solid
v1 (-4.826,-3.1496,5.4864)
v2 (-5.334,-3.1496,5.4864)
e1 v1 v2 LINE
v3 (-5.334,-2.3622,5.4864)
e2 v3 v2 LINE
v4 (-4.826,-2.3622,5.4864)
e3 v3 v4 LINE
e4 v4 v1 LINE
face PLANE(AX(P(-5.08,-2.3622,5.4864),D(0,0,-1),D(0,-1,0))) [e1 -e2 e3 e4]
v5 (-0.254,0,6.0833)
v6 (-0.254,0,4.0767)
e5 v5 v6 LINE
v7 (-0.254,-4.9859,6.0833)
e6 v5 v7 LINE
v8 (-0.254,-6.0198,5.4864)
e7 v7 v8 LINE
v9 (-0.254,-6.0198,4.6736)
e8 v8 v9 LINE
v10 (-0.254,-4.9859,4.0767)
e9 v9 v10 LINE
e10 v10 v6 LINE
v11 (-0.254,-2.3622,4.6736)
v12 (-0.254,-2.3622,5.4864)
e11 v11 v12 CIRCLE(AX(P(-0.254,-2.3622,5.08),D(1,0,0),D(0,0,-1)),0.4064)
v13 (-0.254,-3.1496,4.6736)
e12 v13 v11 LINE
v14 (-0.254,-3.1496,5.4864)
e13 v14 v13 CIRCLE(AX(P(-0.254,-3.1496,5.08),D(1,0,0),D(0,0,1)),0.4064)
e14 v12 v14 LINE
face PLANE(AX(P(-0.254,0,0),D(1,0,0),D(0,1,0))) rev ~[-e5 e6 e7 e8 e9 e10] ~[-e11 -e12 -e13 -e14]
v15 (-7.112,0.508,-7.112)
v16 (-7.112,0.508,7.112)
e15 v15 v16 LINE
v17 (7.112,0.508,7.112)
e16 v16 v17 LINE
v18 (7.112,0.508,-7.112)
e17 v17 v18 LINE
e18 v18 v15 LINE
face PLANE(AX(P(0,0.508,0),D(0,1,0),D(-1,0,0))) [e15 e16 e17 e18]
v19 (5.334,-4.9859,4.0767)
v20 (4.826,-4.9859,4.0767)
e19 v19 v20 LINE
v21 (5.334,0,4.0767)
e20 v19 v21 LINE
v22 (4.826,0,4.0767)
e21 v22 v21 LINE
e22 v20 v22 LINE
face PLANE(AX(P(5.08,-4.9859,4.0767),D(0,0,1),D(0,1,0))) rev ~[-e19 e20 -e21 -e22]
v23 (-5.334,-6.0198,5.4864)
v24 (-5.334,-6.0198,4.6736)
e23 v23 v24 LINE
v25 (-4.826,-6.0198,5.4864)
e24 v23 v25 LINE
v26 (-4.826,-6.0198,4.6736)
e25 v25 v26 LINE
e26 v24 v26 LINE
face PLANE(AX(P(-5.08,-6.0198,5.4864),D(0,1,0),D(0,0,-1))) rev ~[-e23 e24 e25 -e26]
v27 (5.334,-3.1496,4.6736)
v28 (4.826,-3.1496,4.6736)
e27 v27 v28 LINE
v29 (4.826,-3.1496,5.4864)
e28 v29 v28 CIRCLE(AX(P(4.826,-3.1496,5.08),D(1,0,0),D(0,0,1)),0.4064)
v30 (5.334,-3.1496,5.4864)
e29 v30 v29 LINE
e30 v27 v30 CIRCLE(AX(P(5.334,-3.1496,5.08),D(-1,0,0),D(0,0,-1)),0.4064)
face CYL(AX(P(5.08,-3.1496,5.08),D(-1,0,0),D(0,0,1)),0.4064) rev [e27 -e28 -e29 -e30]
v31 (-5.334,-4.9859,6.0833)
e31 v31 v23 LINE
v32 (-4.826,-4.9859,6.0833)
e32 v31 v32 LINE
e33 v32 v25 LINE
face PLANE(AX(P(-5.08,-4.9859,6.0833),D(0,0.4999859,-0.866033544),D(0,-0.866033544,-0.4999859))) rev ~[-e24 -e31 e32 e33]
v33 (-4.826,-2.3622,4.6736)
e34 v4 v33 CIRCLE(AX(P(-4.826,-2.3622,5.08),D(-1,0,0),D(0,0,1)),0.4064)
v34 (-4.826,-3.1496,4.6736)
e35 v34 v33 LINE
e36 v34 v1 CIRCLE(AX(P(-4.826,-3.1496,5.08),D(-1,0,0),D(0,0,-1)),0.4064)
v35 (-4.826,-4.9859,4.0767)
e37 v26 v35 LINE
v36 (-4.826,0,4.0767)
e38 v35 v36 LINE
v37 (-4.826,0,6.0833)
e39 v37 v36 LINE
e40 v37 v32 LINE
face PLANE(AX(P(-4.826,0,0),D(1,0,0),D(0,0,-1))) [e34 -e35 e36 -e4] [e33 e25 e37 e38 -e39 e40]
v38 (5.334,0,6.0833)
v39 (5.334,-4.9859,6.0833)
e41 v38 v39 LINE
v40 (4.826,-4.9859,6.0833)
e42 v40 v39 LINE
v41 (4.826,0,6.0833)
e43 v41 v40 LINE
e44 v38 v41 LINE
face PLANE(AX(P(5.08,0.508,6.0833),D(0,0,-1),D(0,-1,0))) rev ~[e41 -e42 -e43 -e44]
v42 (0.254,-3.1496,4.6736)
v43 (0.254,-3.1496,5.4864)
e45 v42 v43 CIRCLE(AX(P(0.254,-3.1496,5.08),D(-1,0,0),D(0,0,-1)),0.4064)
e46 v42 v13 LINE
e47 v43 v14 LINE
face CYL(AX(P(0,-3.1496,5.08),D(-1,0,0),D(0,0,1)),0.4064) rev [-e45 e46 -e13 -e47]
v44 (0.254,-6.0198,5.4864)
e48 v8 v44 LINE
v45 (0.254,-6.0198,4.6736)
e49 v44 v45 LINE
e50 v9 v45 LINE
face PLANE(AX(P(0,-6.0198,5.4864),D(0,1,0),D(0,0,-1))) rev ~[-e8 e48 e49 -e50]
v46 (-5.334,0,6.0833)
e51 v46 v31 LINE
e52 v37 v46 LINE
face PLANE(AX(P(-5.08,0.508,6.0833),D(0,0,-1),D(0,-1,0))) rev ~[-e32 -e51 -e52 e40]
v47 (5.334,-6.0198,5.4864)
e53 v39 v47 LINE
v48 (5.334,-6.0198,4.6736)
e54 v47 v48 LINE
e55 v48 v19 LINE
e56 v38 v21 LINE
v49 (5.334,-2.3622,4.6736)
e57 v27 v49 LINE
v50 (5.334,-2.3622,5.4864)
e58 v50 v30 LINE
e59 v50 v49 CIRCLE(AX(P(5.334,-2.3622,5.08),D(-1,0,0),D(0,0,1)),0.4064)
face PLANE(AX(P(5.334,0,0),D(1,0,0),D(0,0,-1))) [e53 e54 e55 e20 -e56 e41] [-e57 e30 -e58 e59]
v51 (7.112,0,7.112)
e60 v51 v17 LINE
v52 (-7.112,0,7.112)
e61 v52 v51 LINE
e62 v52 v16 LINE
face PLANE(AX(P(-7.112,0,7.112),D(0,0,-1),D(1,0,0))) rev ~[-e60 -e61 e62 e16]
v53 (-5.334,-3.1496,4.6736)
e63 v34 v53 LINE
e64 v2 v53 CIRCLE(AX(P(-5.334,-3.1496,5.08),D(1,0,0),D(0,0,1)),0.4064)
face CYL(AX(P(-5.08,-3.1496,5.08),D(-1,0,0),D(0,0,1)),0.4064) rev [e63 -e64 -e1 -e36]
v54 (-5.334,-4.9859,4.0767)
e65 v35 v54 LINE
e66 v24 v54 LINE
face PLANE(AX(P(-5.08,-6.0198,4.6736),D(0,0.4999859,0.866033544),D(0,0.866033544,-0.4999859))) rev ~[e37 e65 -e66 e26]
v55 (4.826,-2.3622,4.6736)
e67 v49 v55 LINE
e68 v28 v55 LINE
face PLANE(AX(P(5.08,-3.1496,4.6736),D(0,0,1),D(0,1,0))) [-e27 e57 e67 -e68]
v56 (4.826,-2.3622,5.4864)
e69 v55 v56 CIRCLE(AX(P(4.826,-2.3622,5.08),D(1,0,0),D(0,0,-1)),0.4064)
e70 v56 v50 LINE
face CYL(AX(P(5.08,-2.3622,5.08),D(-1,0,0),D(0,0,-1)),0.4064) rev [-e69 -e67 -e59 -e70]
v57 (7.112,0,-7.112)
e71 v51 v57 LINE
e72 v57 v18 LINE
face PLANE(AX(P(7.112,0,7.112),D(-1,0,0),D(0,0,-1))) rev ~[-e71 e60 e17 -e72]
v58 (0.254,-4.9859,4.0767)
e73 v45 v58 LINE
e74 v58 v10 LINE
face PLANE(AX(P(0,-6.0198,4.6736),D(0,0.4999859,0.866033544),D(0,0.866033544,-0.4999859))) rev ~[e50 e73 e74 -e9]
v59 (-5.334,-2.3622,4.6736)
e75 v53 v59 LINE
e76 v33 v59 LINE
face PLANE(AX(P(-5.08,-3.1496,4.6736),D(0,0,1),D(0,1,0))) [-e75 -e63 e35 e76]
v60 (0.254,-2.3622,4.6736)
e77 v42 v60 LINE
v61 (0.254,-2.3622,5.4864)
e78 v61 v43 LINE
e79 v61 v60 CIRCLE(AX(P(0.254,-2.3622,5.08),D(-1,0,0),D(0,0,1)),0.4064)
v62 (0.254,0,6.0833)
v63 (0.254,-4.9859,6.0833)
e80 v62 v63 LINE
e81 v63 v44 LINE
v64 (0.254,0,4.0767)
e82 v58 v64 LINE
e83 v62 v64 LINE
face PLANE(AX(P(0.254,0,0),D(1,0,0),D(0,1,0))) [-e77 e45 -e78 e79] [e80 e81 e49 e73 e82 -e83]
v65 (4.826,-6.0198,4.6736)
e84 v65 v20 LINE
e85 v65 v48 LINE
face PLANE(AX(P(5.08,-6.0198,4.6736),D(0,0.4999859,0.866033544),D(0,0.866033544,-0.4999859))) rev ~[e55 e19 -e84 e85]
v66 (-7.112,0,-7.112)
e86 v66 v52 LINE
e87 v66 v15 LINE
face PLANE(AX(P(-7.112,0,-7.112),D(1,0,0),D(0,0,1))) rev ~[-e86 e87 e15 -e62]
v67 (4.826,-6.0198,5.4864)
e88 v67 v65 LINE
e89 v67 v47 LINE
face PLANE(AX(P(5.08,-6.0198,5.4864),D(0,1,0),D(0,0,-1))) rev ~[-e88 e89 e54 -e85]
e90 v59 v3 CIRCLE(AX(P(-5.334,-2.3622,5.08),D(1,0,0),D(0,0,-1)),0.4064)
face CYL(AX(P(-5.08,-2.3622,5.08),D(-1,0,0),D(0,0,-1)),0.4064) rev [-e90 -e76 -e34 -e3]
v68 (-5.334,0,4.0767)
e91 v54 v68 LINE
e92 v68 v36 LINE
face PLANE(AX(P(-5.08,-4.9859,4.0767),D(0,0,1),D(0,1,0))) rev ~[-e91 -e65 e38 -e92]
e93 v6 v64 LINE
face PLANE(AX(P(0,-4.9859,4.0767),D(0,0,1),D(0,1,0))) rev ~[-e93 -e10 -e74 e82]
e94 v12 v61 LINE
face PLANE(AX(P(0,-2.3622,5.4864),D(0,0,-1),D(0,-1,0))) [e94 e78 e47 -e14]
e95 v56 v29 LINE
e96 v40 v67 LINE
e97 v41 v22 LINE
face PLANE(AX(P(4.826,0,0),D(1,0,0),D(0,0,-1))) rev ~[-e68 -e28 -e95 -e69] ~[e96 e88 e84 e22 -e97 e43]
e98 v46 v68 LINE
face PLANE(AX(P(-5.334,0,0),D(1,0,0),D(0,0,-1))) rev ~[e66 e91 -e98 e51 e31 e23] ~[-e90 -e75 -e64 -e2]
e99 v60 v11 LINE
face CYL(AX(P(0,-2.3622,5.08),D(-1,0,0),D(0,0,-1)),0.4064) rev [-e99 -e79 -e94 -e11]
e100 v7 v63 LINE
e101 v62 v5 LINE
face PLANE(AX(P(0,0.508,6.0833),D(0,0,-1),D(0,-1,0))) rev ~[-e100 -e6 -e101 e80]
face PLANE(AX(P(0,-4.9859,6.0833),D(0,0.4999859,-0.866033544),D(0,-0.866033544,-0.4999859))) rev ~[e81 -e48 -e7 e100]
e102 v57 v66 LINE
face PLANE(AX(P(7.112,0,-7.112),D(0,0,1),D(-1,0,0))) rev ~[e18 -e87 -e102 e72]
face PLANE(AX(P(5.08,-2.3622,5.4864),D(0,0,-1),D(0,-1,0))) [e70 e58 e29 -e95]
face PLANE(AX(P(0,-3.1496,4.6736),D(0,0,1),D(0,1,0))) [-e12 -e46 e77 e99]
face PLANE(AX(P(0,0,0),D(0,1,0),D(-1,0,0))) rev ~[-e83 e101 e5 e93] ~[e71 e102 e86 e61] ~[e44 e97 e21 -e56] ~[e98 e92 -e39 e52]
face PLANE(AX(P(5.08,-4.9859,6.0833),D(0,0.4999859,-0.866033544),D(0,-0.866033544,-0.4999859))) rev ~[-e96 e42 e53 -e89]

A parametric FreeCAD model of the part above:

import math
import FreeCAD as App
import Part
import Sketcher

V = App.Vector
Q = App.Units.Quantity

doc = App.newDocument("Part")
body = doc.addObject("PartDesign::Body", "Body")

# Sketch on XZ plane
sketch1 = doc.addObject("Sketcher::SketchObject", "Sketch")
body.addObject(sketch1)
sketch1.AttachmentSupport = (doc.XZ_Plane, [""])
sketch1.MapMode = "FlatFace"
sketch1.addGeometry([
    Part.LineSegment(V(7, -7, 0), V(-7, -7, 0)),
    Part.LineSegment(V(-7, -7, 0), V(-7, 7, 0)),
    Part.LineSegment(V(-7, 7, 0), V(7, 7, 0)),
    Part.LineSegment(V(7, 7, 0), V(7, -7, 0)),
], False)
sketch1.addConstraint([
    Sketcher.Constraint("Coincident", 0, 2, 1, 1),
    Sketcher.Constraint("Coincident", 1, 2, 2, 1),
    Sketcher.Constraint("Coincident", 2, 2, 3, 1),
    Sketcher.Constraint("Coincident", 3, 2, 0, 1),
    Sketcher.Constraint("Horizontal", 0),
    Sketcher.Constraint("Vertical", 1),
    Sketcher.Constraint("Horizontal", 2),
    Sketcher.Constraint("Vertical", 3),
    Sketcher.Constraint("Symmetric", 0, 2, 2, 2, -1, 1),
    Sketcher.Constraint("Equal", 2, 1),
    Sketcher.Constraint("DistanceX", 0, 2, 0, 1, Q("0.56 in")),
])
pad1 = doc.addObject("PartDesign::Pad", "Pad")
body.addObject(pad1)
pad1.Profile = sketch1
pad1.Length = Q("0.02 in")
pad1.Reversed = True

# Sketch on YZ plane
sketch2 = doc.addObject("Sketcher::SketchObject", "Sketch001")
body.addObject(sketch2)
sketch2.AttachmentSupport = (doc.YZ_Plane, [""])
sketch2.MapMode = "FlatFace"
sketch2.AttachmentOffset = App.Placement(V(0, 0, -0.2 * 25.4), App.Rotation())
sketch2.addGeometry([
    Part.LineSegment(V(0.51, 6.08, 0), V(-4.99, 6.08, 0)),  # 0
    Part.LineSegment(V(-4.99, 6.08, 0), V(-6.02, 5.49, 0)),  # 1
    Part.LineSegment(V(-6.02, 5.49, 0), V(-6.02, 4.67, 0)),  # 2
    Part.LineSegment(V(-6.02, 4.67, 0), V(-4.99, 4.08, 0)),  # 3
    Part.LineSegment(V(-4.99, 4.08, 0), V(0.51, 4.08, 0)),  # 4
    Part.LineSegment(V(0.51, 4.08, 0), V(0.51, 6.08, 0)),  # 5
    Part.LineSegment(V(-3.15, 5.49, 0), V(-2.36, 5.49, 0)),  # 6
    Part.ArcOfCircle(Part.Circle(V(-2.36, 5.08, 0), V(0, 0, 1), 0.41), math.radians(-90), math.radians(90)),  # 7
    Part.LineSegment(V(-2.36, 4.67, 0), V(-3.15, 4.67, 0)),  # 8
    Part.ArcOfCircle(Part.Circle(V(-3.15, 5.08, 0), V(0, 0, 1), 0.41), math.radians(90), math.radians(270)),  # 9
], False)
sketch2.addConstraint([
    Sketcher.Constraint("Coincident", 0, 2, 1, 1),
    Sketcher.Constraint("Coincident", 1, 2, 2, 1),
    Sketcher.Constraint("Coincident", 2, 2, 3, 1),
    Sketcher.Constraint("Coincident", 3, 2, 4, 1),
    Sketcher.Constraint("Coincident", 4, 2, 5, 1),
    Sketcher.Constraint("Coincident", 5, 2, 0, 1),
    Sketcher.Constraint("Tangent", 6, 2, 7, 2),
    Sketcher.Constraint("Tangent", 7, 1, 8, 1),
    Sketcher.Constraint("Tangent", 8, 2, 9, 2),
    Sketcher.Constraint("Tangent", 9, 1, 6, 1),
    Sketcher.Constraint("Horizontal", 0),
    Sketcher.Constraint("Vertical", 2),
    Sketcher.Constraint("Horizontal", 4),
    Sketcher.Constraint("Vertical", 5),
    Sketcher.Constraint("Horizontal", 6),
    Sketcher.Constraint("Horizontal", 8),
    Sketcher.Constraint("Horizontal", 1, 2, 6, 2),
    Sketcher.Constraint("Horizontal", 2, 2, 7, 1),
    Sketcher.Constraint("Vertical", 0, 2, 3, 2),
    Sketcher.Constraint("Equal", 1, 3),
    Sketcher.Constraint("Angle", 1, Q("-150.001 deg")),
    Sketcher.Constraint("Radius", 7, Q("0.016 in")),
    Sketcher.Constraint("DistanceY", -1, 1, 7, 3, Q("0.2 in")),
    Sketcher.Constraint("DistanceX", 6, 1, 6, 2, Q("0.031 in")),
    Sketcher.Constraint("DistanceY", 5, 1, 5, 2, Q("0.079 in")),
    Sketcher.Constraint("DistanceX", -1, 1, 4, 2, Q("0.02 in")),
    Sketcher.Constraint("DistanceX", 0, 2, 0, 1, Q("0.2163 in")),
    Sketcher.Constraint("DistanceX", 7, 3, -1, 1, Q("0.093 in")),
])
pad2 = doc.addObject("PartDesign::Pad", "Pad001")
body.addObject(pad2)
pad2.Profile = sketch2
pad2.Length = Q("0.02 in")
pad2.Midplane = True

# Sketch on YZ plane
sketch3 = doc.addObject("Sketcher::SketchObject", "Sketch002")
body.addObject(sketch3)
sketch3.AttachmentSupport = (doc.YZ_Plane, [""])
sketch3.MapMode = "FlatFace"
sketch3.addGeometry([
    Part.LineSegment(V(0.51, 6.08, 0), V(-4.99, 6.08, 0)),  # 0
    Part.LineSegment(V(-4.99, 6.08, 0), V(-6.02, 5.49, 0)),  # 1
    Part.LineSegment(V(-6.02, 5.49, 0), V(-6.02, 4.67, 0)),  # 2
    Part.LineSegment(V(-6.02, 4.67, 0), V(-4.99, 4.08, 0)),  # 3
    Part.LineSegment(V(-4.99, 4.08, 0), V(0.51, 4.08, 0)),  # 4
    Part.LineSegment(V(0.51, 4.08, 0), V(0.51, 6.08, 0)),  # 5
    Part.LineSegment(V(-3.15, 5.49, 0), V(-2.36, 5.49, 0)),  # 6
    Part.ArcOfCircle(Part.Circle(V(-2.36, 5.08, 0), V(0, 0, 1), 0.41), math.radians(-90), math.radians(90)),  # 7
    Part.LineSegment(V(-2.36, 4.67, 0), V(-3.15, 4.67, 0)),  # 8
    Part.ArcOfCircle(Part.Circle(V(-3.15, 5.08, 0), V(0, 0, 1), 0.41), math.radians(90), math.radians(270)),  # 9
], False)
sketch3.addConstraint([
    Sketcher.Constraint("Coincident", 0, 2, 1, 1),
    Sketcher.Constraint("Coincident", 1, 2, 2, 1),
    Sketcher.Constraint("Coincident", 2, 2, 3, 1),
    Sketcher.Constraint("Coincident", 3, 2, 4, 1),
    Sketcher.Constraint("Coincident", 4, 2, 5, 1),
    Sketcher.Constraint("Coincident", 5, 2, 0, 1),
    Sketcher.Constraint("Tangent", 6, 2, 7, 2),
    Sketcher.Constraint("Tangent", 7, 1, 8, 1),
    Sketcher.Constraint("Tangent", 8, 2, 9, 2),
    Sketcher.Constraint("Tangent", 9, 1, 6, 1),
    Sketcher.Constraint("Horizontal", 0),
    Sketcher.Constraint("Vertical", 2),
    Sketcher.Constraint("Horizontal", 4),
    Sketcher.Constraint("Vertical", 5),
    Sketcher.Constraint("Horizontal", 6),
    Sketcher.Constraint("Horizontal", 8),
    Sketcher.Constraint("Horizontal", 1, 2, 6, 2),
    Sketcher.Constraint("Horizontal", 2, 2, 7, 1),
    Sketcher.Constraint("Vertical", 0, 2, 3, 2),
    Sketcher.Constraint("Equal", 1, 3),
    Sketcher.Constraint("Angle", 1, Q("-150.001 deg")),
    Sketcher.Constraint("Radius", 7, Q("0.016 in")),
    Sketcher.Constraint("DistanceY", -1, 1, 7, 3, Q("0.2 in")),
    Sketcher.Constraint("DistanceX", 6, 1, 6, 2, Q("0.031 in")),
    Sketcher.Constraint("DistanceY", 5, 1, 5, 2, Q("0.079 in")),
    Sketcher.Constraint("DistanceX", -1, 1, 4, 2, Q("0.02 in")),
    Sketcher.Constraint("DistanceX", 0, 2, 0, 1, Q("0.2163 in")),
    Sketcher.Constraint("DistanceX", 7, 3, -1, 1, Q("0.093 in")),
])
pad3 = doc.addObject("PartDesign::Pad", "Pad002")
body.addObject(pad3)
pad3.Profile = sketch3
pad3.Length = Q("0.02 in")
pad3.Midplane = True

# Sketch on YZ plane
sketch4 = doc.addObject("Sketcher::SketchObject", "Sketch003")
body.addObject(sketch4)
sketch4.AttachmentSupport = (doc.YZ_Plane, [""])
sketch4.MapMode = "FlatFace"
sketch4.AttachmentOffset = App.Placement(V(0, 0, 0.2 * 25.4), App.Rotation())
sketch4.addGeometry([
    Part.LineSegment(V(0.51, 6.08, 0), V(-4.99, 6.08, 0)),  # 0
    Part.LineSegment(V(-4.99, 6.08, 0), V(-6.02, 5.49, 0)),  # 1
    Part.LineSegment(V(-6.02, 5.49, 0), V(-6.02, 4.67, 0)),  # 2
    Part.LineSegment(V(-6.02, 4.67, 0), V(-4.99, 4.08, 0)),  # 3
    Part.LineSegment(V(-4.99, 4.08, 0), V(0.51, 4.08, 0)),  # 4
    Part.LineSegment(V(0.51, 4.08, 0), V(0.51, 6.08, 0)),  # 5
    Part.LineSegment(V(-3.15, 5.49, 0), V(-2.36, 5.49, 0)),  # 6
    Part.ArcOfCircle(Part.Circle(V(-2.36, 5.08, 0), V(0, 0, 1), 0.41), math.radians(-90), math.radians(90)),  # 7
    Part.LineSegment(V(-2.36, 4.67, 0), V(-3.15, 4.67, 0)),  # 8
    Part.ArcOfCircle(Part.Circle(V(-3.15, 5.08, 0), V(0, 0, 1), 0.41), math.radians(90), math.radians(270)),  # 9
], False)
sketch4.addConstraint([
    Sketcher.Constraint("Coincident", 0, 2, 1, 1),
    Sketcher.Constraint("Coincident", 1, 2, 2, 1),
    Sketcher.Constraint("Coincident", 2, 2, 3, 1),
    Sketcher.Constraint("Coincident", 3, 2, 4, 1),
    Sketcher.Constraint("Coincident", 4, 2, 5, 1),
    Sketcher.Constraint("Coincident", 5, 2, 0, 1),
    Sketcher.Constraint("Tangent", 6, 2, 7, 2),
    Sketcher.Constraint("Tangent", 7, 1, 8, 1),
    Sketcher.Constraint("Tangent", 8, 2, 9, 2),
    Sketcher.Constraint("Tangent", 9, 1, 6, 1),
    Sketcher.Constraint("Horizontal", 0),
    Sketcher.Constraint("Vertical", 2),
    Sketcher.Constraint("Horizontal", 4),
    Sketcher.Constraint("Vertical", 5),
    Sketcher.Constraint("Horizontal", 6),
    Sketcher.Constraint("Horizontal", 8),
    Sketcher.Constraint("Horizontal", 1, 2, 6, 2),
    Sketcher.Constraint("Horizontal", 2, 2, 7, 1),
    Sketcher.Constraint("Vertical", 0, 2, 3, 2),
    Sketcher.Constraint("Equal", 1, 3),
    Sketcher.Constraint("Angle", 1, Q("-150.001 deg")),
    Sketcher.Constraint("Radius", 7, Q("0.016 in")),
    Sketcher.Constraint("DistanceY", -1, 1, 7, 3, Q("0.2 in")),
    Sketcher.Constraint("DistanceX", 6, 1, 6, 2, Q("0.031 in")),
    Sketcher.Constraint("DistanceY", 5, 1, 5, 2, Q("0.079 in")),
    Sketcher.Constraint("DistanceX", -1, 1, 4, 2, Q("0.02 in")),
    Sketcher.Constraint("DistanceX", 0, 2, 0, 1, Q("0.2163 in")),
    Sketcher.Constraint("DistanceX", 7, 3, -1, 1, Q("0.093 in")),
])
pad4 = doc.addObject("PartDesign::Pad", "Pad003")
body.addObject(pad4)
pad4.Profile = sketch4
pad4.Length = Q("0.02 in")
pad4.Midplane = True

doc.recompute()
